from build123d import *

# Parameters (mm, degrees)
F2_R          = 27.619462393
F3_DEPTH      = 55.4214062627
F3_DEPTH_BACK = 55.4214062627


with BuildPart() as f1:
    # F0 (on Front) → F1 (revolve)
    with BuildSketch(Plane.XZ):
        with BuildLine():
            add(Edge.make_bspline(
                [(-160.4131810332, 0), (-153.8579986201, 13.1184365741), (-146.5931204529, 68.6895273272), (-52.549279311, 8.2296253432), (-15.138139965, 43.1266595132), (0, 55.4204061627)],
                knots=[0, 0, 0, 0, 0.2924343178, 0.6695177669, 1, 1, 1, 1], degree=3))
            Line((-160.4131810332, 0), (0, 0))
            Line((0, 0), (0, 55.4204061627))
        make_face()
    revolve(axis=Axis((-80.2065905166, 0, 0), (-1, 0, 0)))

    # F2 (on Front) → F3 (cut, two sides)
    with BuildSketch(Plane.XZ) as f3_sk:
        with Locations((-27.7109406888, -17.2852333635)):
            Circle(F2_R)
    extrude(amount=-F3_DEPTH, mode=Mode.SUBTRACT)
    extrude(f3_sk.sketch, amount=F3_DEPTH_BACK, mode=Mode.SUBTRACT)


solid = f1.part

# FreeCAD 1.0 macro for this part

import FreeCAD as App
import Part
import Sketcher

V = App.Vector
Q = App.Units.Quantity

doc = App.newDocument("Part")
body = doc.addObject("PartDesign::Body", "Body")

# Sketch on XZ plane
sketch1 = body.newObject("Sketcher::SketchObject", "Sketch")
sketch1.AttachmentSupport = (doc.getObject("XZ_Plane"), [""])
sketch1.MapMode = "FlatFace"
sketch1.addGeometry([
    Part.BSplineCurve([V(-160.413181, 0, 0), V(-153.857999, 13.118437, 0), V(-146.59312, 68.689527, 0), V(-52.549279, 8.229625, 0), V(-15.13814, 43.12666, 0), V(0, 55.420406, 0)], [4, 1, 1, 4], [0, 0.292434318, 0.669517767, 1], False, 3, [1, 1, 1, 1, 1, 1], False),
    Part.LineSegment(V(-160.413181, 0, 0), V(0, 0, 0)),
    Part.LineSegment(V(0, 0, 0), V(0, 55.420406, 0)),
], False)
sketch1.addConstraint([
    Sketcher.Constraint("Block", 0),
    Sketcher.Constraint("Coincident", 0, 1, 1, 1),
    Sketcher.Constraint("Coincident", 1, 2, 2, 1),
    Sketcher.Constraint("Coincident", 2, 2, 0, 2),
    Sketcher.Constraint("Horizontal", 1),
    Sketcher.Constraint("Vertical", 2),
])
revolution = body.newObject("PartDesign::Revolution", "Revolution")
revolution.Profile = sketch1
revolution.ReferenceAxis = (sketch1, ["H_Axis"])
revolution.Angle = 360

# Sketch on XZ plane
sketch2 = body.newObject("Sketcher::SketchObject", "Sketch001")
sketch2.AttachmentSupport = (doc.getObject("XZ_Plane"), [""])
sketch2.MapMode = "FlatFace"
sketch2.addGeometry(Part.Circle(V(-28, -17, 0), V(0, 0, 1), 28), False)
sketch2.addConstraint([
    Sketcher.Constraint("Diameter", 0, Q("55.238925 mm")),
    Sketcher.Constraint("DistanceX", 0, 3, -1, 1, Q("27.710941 mm")),
    Sketcher.Constraint("DistanceY", 0, 3, -1, 1, Q("17.285233 mm")),
])
pocket1 = body.newObject("PartDesign::Pocket", "Pocket")
pocket1.Profile = sketch2
pocket1.Type = "ThroughAll"
pocket1.Midplane = True

doc.recompute()
